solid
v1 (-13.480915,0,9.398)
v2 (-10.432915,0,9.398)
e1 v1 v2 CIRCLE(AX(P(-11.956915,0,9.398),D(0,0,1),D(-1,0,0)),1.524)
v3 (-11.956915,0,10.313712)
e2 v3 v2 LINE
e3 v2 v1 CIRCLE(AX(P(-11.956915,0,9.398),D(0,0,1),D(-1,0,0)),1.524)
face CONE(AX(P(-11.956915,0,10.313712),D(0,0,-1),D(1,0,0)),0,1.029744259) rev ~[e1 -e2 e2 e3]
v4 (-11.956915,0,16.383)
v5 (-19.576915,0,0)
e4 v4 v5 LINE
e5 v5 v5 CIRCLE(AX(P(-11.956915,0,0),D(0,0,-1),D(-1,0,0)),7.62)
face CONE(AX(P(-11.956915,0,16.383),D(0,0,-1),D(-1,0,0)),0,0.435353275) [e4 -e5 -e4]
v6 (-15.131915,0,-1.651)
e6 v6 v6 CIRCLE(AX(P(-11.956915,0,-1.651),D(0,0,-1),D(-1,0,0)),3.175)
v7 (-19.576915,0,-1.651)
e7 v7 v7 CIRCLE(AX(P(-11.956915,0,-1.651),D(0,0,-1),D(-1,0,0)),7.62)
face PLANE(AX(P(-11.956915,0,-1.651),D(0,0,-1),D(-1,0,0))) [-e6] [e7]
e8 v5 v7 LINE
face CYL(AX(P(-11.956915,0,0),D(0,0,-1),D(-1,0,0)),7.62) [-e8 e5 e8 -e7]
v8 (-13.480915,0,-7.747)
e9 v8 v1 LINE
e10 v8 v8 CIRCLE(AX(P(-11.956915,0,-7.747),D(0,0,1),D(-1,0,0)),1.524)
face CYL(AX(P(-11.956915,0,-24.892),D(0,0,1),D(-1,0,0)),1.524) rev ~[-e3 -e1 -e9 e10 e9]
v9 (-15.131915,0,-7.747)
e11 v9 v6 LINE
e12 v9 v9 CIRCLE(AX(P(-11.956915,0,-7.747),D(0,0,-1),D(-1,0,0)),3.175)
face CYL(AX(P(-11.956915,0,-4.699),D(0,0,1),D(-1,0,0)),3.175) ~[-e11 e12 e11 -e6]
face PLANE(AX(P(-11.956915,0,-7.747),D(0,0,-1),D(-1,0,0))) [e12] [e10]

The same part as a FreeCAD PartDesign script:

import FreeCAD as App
import Part
import Sketcher

V = App.Vector
Q = App.Units.Quantity

doc = App.newDocument("Part")
body = doc.addObject("PartDesign::Body", "Body")

# Sketch on XZ plane
sketch1 = doc.addObject("Sketcher::SketchObject", "Sketch")
body.addObject(sketch1)
sketch1.AttachmentSupport = (doc.XZ_Plane, [""])
sketch1.MapMode = "FlatFace"
sketch1.addGeometry([
    Part.LineSegment(V(-12, 16.4, 0), V(-19.6, 0, 0)),  # 0
    Part.LineSegment(V(-19.6, 0, 0), V(-19.6, -1.7, 0)),  # 1
    Part.LineSegment(V(-19.6, -1.7, 0), V(-15.1, -1.7, 0)),  # 2
    Part.LineSegment(V(-15.1, -1.7, 0), V(-15.1, -7.7, 0)),  # 3
    Part.LineSegment(V(-15.1, -7.7, 0), V(-12, -7.7, 0)),  # 4
    Part.LineSegment(V(-12, -7.7, 0), V(-12, 16.4, 0)),  # 5
], False)
sketch1.addGeometry(Part.LineSegment(V(-12, 16.4, 0), V(-12, -7.7, 0)), True)  # axis
sketch1.addConstraint([
    Sketcher.Constraint("Coincident", 0, 2, 1, 1),
    Sketcher.Constraint("Coincident", 1, 2, 2, 1),
    Sketcher.Constraint("Coincident", 2, 2, 3, 1),
    Sketcher.Constraint("Coincident", 3, 2, 4, 1),
    Sketcher.Constraint("Coincident", 4, 2, 5, 1),
    Sketcher.Constraint("Coincident", 5, 2, 0, 1),
    Sketcher.Constraint("Vertical", 1),
    Sketcher.Constraint("Horizontal", 2),
    Sketcher.Constraint("Vertical", 3),
    Sketcher.Constraint("Horizontal", 4),
    Sketcher.Constraint("Vertical", 5),
    Sketcher.Constraint("Vertical", 6),
    Sketcher.Constraint("Coincident", 6, 1, 5, 2),
    Sketcher.Constraint("PointOnObject", 0, 2, -1),
    Sketcher.Constraint("Horizontal", 3, 2, 6, 2),
    Sketcher.Constraint("DistanceY", 3, 2, 3, 1, Q("0.24 in")),
    Sketcher.Constraint("DistanceY", 5, 1, 5, 2, Q("0.95 in")),
    Sketcher.Constraint("DistanceX", 1, 2, 4, 2, Q("0.3 in")),
    Sketcher.Constraint("DistanceX", 2, 1, 2, 2, Q("0.175 in")),
    Sketcher.Constraint("DistanceY", 1, 2, 1, 1, Q("0.065 in")),
    Sketcher.Constraint("DistanceX", 0, 2, -1, 1, Q("19.576915 mm")),
])
revolution = doc.addObject("PartDesign::Revolution", "Revolution")
body.addObject(revolution)
revolution.Profile = sketch1
revolution.ReferenceAxis = (sketch1, ["Axis0"])
revolution.Angle = 360

# Sketch on XY plane
sketch2 = doc.addObject("Sketcher::SketchObject", "Sketch001")
body.addObject(sketch2)
sketch2.AttachmentSupport = (doc.XY_Plane, [""])
sketch2.MapMode = "FlatFace"
sketch2.AttachmentOffset = App.Placement(V(0, 0, -0.305 * 25.4), App.Rotation())
sketch2.addGeometry(Part.Circle(V(-12, 0, 0), V(0, 0, 1), 1.5), False)
sketch2.addConstraint([
    Sketcher.Constraint("PointOnObject", 0, 3, -1),
    Sketcher.Constraint("Diameter", 0, Q("0.12 in")),
    Sketcher.Constraint("DistanceX", 0, 3, -1, 1, Q("11.956915 mm")),
])
doc.recompute()
hole = doc.addObject("PartDesign::Hole", "Hole")
body.addObject(hole)
hole.Profile = sketch2
hole.ThreadType = "None"
hole.Diameter = Q("0.12 in")
hole.DepthType = "Dimension"
hole.Depth = Q("0.675 in")
hole.DrillPoint = "Angled"
hole.DrillPointAngle = 118
hole.Reversed = True

doc.recompute()
